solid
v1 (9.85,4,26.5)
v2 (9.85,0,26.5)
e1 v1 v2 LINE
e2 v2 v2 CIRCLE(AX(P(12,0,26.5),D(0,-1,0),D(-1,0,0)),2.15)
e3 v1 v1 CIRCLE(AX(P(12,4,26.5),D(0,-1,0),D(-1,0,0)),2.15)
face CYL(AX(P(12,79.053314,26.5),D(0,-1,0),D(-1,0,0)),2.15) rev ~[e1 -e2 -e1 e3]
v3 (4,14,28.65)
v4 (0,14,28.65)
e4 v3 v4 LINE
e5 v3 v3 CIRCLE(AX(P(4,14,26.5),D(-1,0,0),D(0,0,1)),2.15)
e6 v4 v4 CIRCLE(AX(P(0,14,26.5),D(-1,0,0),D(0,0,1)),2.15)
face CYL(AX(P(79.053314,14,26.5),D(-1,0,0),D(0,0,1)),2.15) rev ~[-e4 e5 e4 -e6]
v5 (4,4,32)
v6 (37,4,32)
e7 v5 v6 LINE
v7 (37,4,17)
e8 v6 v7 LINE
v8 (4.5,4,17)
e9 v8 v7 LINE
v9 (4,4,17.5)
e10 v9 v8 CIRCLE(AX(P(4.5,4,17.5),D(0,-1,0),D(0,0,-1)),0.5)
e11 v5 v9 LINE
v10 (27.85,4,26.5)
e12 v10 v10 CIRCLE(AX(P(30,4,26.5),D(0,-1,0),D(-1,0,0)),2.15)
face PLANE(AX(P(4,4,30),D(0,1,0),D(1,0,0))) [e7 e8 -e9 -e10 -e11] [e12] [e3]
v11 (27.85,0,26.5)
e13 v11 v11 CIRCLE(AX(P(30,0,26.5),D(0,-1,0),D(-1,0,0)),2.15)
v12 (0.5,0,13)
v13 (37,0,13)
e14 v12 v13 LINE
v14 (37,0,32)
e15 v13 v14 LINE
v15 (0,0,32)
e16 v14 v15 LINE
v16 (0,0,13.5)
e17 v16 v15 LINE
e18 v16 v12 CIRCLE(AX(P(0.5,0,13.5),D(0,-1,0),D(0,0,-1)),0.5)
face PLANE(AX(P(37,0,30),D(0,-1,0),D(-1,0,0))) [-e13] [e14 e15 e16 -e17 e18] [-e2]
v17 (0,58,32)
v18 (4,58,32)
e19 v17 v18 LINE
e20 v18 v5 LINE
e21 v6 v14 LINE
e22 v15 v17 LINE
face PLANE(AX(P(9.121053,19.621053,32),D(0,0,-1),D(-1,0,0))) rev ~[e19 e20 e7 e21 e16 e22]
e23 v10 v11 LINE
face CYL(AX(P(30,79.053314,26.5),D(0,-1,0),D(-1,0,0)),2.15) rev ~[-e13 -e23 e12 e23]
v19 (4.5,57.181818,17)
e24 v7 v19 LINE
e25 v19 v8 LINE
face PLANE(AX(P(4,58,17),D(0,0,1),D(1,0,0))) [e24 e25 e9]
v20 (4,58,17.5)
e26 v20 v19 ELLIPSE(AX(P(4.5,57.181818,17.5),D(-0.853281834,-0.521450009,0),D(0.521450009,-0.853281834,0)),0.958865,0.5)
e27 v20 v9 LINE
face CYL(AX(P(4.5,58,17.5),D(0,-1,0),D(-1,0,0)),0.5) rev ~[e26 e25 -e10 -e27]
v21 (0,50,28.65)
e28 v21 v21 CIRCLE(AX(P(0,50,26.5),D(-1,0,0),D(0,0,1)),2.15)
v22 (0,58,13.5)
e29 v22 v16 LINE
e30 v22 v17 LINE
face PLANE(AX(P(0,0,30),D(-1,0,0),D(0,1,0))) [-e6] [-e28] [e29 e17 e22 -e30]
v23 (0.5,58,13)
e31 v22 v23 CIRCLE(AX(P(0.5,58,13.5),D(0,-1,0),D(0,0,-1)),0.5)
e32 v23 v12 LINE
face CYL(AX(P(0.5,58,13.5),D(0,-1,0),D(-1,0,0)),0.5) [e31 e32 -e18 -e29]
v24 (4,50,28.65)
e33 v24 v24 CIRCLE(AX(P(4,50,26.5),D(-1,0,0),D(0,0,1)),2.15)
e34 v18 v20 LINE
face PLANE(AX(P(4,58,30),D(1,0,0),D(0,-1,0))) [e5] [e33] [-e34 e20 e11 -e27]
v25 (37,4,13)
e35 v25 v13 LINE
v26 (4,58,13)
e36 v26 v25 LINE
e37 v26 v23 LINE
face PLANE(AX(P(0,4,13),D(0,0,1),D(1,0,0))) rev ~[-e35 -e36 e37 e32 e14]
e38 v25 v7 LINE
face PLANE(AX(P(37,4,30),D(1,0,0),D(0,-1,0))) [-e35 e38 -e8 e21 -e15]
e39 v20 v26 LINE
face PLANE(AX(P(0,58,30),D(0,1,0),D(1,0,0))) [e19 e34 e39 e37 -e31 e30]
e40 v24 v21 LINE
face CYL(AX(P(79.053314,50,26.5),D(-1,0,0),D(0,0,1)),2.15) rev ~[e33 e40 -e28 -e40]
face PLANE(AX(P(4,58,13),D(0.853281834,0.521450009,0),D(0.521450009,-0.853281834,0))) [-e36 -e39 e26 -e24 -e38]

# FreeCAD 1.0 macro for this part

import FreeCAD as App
import Part
import Sketcher


def edges_at(feature, points):
    """Names of the edges that pass closest to the given points."""
    edges = feature.Shape.Edges
    near = lambda p: min(range(len(edges)), key=lambda i: edges[i].distToShape(Part.Vertex(*p))[0])
    return sorted({f"Edge{near(p) + 1}" for p in points})

doc = App.newDocument("Part")
params = doc.addObject("Spreadsheet::Sheet", "Params")
for row, (alias, value) in enumerate([
    ("sketch1_width", "37 mm"),
    ("sketch1_height", "58 mm"),
    ("pad1_length", "30 mm"),
    ("sketch2_width", "33 mm"),
    ("sketch2_height", "13 mm"),
    ("pocket1_length", "54 mm"),
    ("sketch3_width", "33 mm"),
    ("sketch3_height", "54 mm"),
    ("pocket2_length", "46 mm"),
    ("sketch4_diameter", "4.3 mm"),
    ("hole_diameter", "4.3 mm"),
    ("sketch5_diameter", "4.3 mm"),
    ("hole2_diameter", "4.3 mm"),
    ("sketch6_width", "37 mm"),
    ("sketch6_height", "13 mm"),
    ("fillet_radius", "0.5 mm"),
    ("sketch7_width", "4 mm"),
    ("sketch7_width2", "37 mm"),
    ("sketch7_height", "58 mm"),
    ("pad2_length", "2 mm"),
], start=1):
    params.set(f"A{row}", alias)
    params.set(f"B{row}", "=" + value)
    params.setAlias(f"B{row}", alias)

body = doc.addObject("PartDesign::Body", "Body")

# Sketch on XY plane
sketch1 = doc.addObject("Sketcher::SketchObject", "Sketch")
body.addObject(sketch1)
sketch1.AttachmentSupport = (doc.XY_Plane, [""])
sketch1.MapMode = "FlatFace"
sketch1.addGeometry([
    Part.LineSegment(App.Vector(0, 58, 0), App.Vector(0, 0, 0)),
    Part.LineSegment(App.Vector(0, 0, 0), App.Vector(37, 0, 0)),
    Part.LineSegment(App.Vector(37, 0, 0), App.Vector(37, 58, 0)),
    Part.LineSegment(App.Vector(37, 58, 0), App.Vector(0, 58, 0)),
], False)
sketch1.addConstraint([
    Sketcher.Constraint("Coincident", 0, 2, 1, 1),
    Sketcher.Constraint("Coincident", 1, 2, 2, 1),
    Sketcher.Constraint("Coincident", 2, 2, 3, 1),
    Sketcher.Constraint("Coincident", 3, 2, 0, 1),
    Sketcher.Constraint("Vertical", 0),
    Sketcher.Constraint("Horizontal", 1),
    Sketcher.Constraint("Vertical", 2),
    Sketcher.Constraint("Horizontal", 3),
    Sketcher.Constraint("Coincident", 0, 2, -1, 1),
    Sketcher.Constraint("DistanceX", 1, 1, 1, 2, 37.0),
    Sketcher.Constraint("DistanceY", 0, 2, 0, 1, 58.0),
])
sketch1.setExpression("Constraints[9]", "Params.sketch1_width")
sketch1.setExpression("Constraints[10]", "Params.sketch1_height")
pad1 = doc.addObject("PartDesign::Pad", "Pad")
body.addObject(pad1)
pad1.Profile = sketch1
pad1.setExpression("Length", "Params.pad1_length")

# Sketch on XZ plane
sketch2 = doc.addObject("Sketcher::SketchObject", "Sketch001")
body.addObject(sketch2)
sketch2.AttachmentSupport = (doc.XZ_Plane, [""])
sketch2.MapMode = "FlatFace"
sketch2.AttachmentOffset = App.Placement(App.Vector(0, 0, -58), App.Rotation())
sketch2.addGeometry([
    Part.LineSegment(App.Vector(4, 0, 0), App.Vector(4, 13, 0)),  # 0
    Part.LineSegment(App.Vector(4, 13, 0), App.Vector(37, 13, 0)),  # 1
    Part.LineSegment(App.Vector(37, 13, 0), App.Vector(37, 0, 0)),  # 2
    Part.LineSegment(App.Vector(37, 0, 0), App.Vector(4, 0, 0)),  # 3
    Part.LineSegment(App.Vector(4, 17, 0), App.Vector(4, 30, 0)),  # 4
    Part.LineSegment(App.Vector(4, 30, 0), App.Vector(37, 30, 0)),  # 5
    Part.LineSegment(App.Vector(37, 30, 0), App.Vector(37, 17, 0)),  # 6
    Part.LineSegment(App.Vector(37, 17, 0), App.Vector(4, 17, 0)),  # 7
], False)
sketch2.addConstraint([
    Sketcher.Constraint("Coincident", 0, 2, 1, 1),
    Sketcher.Constraint("Coincident", 1, 2, 2, 1),
    Sketcher.Constraint("Coincident", 2, 2, 3, 1),
    Sketcher.Constraint("Coincident", 3, 2, 0, 1),
    Sketcher.Constraint("Coincident", 4, 2, 5, 1),
    Sketcher.Constraint("Coincident", 5, 2, 6, 1),
    Sketcher.Constraint("Coincident", 6, 2, 7, 1),
    Sketcher.Constraint("Coincident", 7, 2, 4, 1),
    Sketcher.Constraint("Vertical", 0),
    Sketcher.Constraint("Horizontal", 1),
    Sketcher.Constraint("Vertical", 2),
    Sketcher.Constraint("Horizontal", 3),
    Sketcher.Constraint("Vertical", 4),
    Sketcher.Constraint("Horizontal", 5),
    Sketcher.Constraint("Vertical", 6),
    Sketcher.Constraint("Horizontal", 7),
    Sketcher.Constraint("PointOnObject", 2, 2, -1),
    Sketcher.Constraint("Vertical", 3, 2, 4, 2),
    Sketcher.Constraint("Vertical", 2, 2, 5, 2),
    Sketcher.Constraint("Equal", 2, 4),
    Sketcher.Constraint("DistanceX", 1, 1, 1, 2, 33.0),
    Sketcher.Constraint("DistanceY", 0, 1, 0, 2, 13.0),
    Sketcher.Constraint("DistanceX", -1, 1, 0, 2, 4.0),
    Sketcher.Constraint("DistanceY", -1, 1, 4, 2, 30.0),
])
sketch2.setExpression("Constraints[20]", "Params.sketch2_width")
sketch2.setExpression("Constraints[21]", "Params.sketch2_height")
pocket1 = doc.addObject("PartDesign::Pocket", "Pocket")
body.addObject(pocket1)
pocket1.Profile = sketch2
pocket1.setExpression("Length", "Params.pocket1_length")
pocket1.Reversed = True

# Sketch on XY plane
sketch3 = doc.addObject("Sketcher::SketchObject", "Sketch002")
body.addObject(sketch3)
sketch3.AttachmentSupport = (doc.XY_Plane, [""])
sketch3.MapMode = "FlatFace"
sketch3.AttachmentOffset = App.Placement(App.Vector(0, 0, 13), App.Rotation())
sketch3.addGeometry([
    Part.LineSegment(App.Vector(4, 58, 0), App.Vector(37, 4, 0)),
    Part.LineSegment(App.Vector(37, 4, 0), App.Vector(37, 58, 0)),
    Part.LineSegment(App.Vector(37, 58, 0), App.Vector(4, 58, 0)),
], False)
sketch3.addConstraint([
    Sketcher.Constraint("Coincident", 0, 2, 1, 1),
    Sketcher.Constraint("Coincident", 1, 2, 2, 1),
    Sketcher.Constraint("Coincident", 2, 2, 0, 1),
    Sketcher.Constraint("Vertical", 1),
    Sketcher.Constraint("Horizontal", 2),
    Sketcher.Constraint("DistanceX", 2, 2, 2, 1, 33.0),
    Sketcher.Constraint("DistanceY", 1, 1, 1, 2, 54.0),
    Sketcher.Constraint("DistanceX", -1, 1, 0, 2, 37.0),
    Sketcher.Constraint("DistanceY", -1, 1, 0, 2, 4.0),
])
sketch3.setExpression("Constraints[5]", "Params.sketch3_width")
sketch3.setExpression("Constraints[6]", "Params.sketch3_height")
pocket2 = doc.addObject("PartDesign::Pocket", "Pocket001")
body.addObject(pocket2)
pocket2.Profile = sketch3
pocket2.setExpression("Length", "Params.pocket2_length")
pocket2.Reversed = True

# Sketch on YZ plane
sketch4 = doc.addObject("Sketcher::SketchObject", "Sketch003")
body.addObject(sketch4)
sketch4.AttachmentSupport = (doc.YZ_Plane, [""])
sketch4.MapMode = "FlatFace"
sketch4.AttachmentOffset = App.Placement(App.Vector(0, 0, 4), App.Rotation())
sketch4.addGeometry([
    Part.Circle(App.Vector(14, 26.5, 0), App.Vector(0, 0, 1), 2.1),
    Part.Circle(App.Vector(50, 26.5, 0), App.Vector(0, 0, 1), 2.1),
], False)
sketch4.addConstraint([
    Sketcher.Constraint("Equal", 0, 1),
    Sketcher.Constraint("Horizontal", 0, 3, 1, 3),
    Sketcher.Constraint("Diameter", 0, 4.3),
    Sketcher.Constraint("DistanceX", -1, 1, 0, 3, 14.0),
    Sketcher.Constraint("DistanceX", -1, 1, 1, 3, 50.0),
    Sketcher.Constraint("DistanceY", -1, 1, 0, 3, 26.5),
])
sketch4.setExpression("Constraints[2]", "Params.sketch4_diameter")
doc.recompute()
hole = doc.addObject("PartDesign::Hole", "Hole")
body.addObject(hole)
hole.Profile = sketch4
hole.ThreadType = "None"
hole.setExpression("Diameter", "Params.hole_diameter")
hole.DepthType = "ThroughAll"

# Sketch on XZ plane
sketch5 = doc.addObject("Sketcher::SketchObject", "Sketch004")
body.addObject(sketch5)
sketch5.AttachmentSupport = (doc.XZ_Plane, [""])
sketch5.MapMode = "FlatFace"
sketch5.AttachmentOffset = App.Placement(App.Vector(0, 0, -4), App.Rotation())
sketch5.addGeometry([
    Part.Circle(App.Vector(12, 26.5, 0), App.Vector(0, 0, 1), 2.1),
    Part.Circle(App.Vector(30, 26.5, 0), App.Vector(0, 0, 1), 2.1),
], False)
sketch5.addConstraint([
    Sketcher.Constraint("Equal", 0, 1),
    Sketcher.Constraint("Horizontal", 0, 3, 1, 3),
    Sketcher.Constraint("Diameter", 0, 4.3),
    Sketcher.Constraint("DistanceX", -1, 1, 0, 3, 12.0),
    Sketcher.Constraint("DistanceX", -1, 1, 1, 3, 30.0),
    Sketcher.Constraint("DistanceY", -1, 1, 0, 3, 26.5),
])
sketch5.setExpression("Constraints[2]", "Params.sketch5_diameter")
doc.recompute()
hole2 = doc.addObject("PartDesign::Hole", "Hole001")
body.addObject(hole2)
hole2.Profile = sketch5
hole2.ThreadType = "None"
hole2.setExpression("Diameter", "Params.hole2_diameter")
hole2.DepthType = "ThroughAll"
hole2.Reversed = True

# Sketch on XZ plane
sketch6 = doc.addObject("Sketcher::SketchObject", "Sketch005")
body.addObject(sketch6)
sketch6.AttachmentSupport = (doc.XZ_Plane, [""])
sketch6.MapMode = "FlatFace"
sketch6.AttachmentOffset = App.Placement(App.Vector(0, 0, -4), App.Rotation())
sketch6.addGeometry([
    Part.LineSegment(App.Vector(0, 0, 0), App.Vector(0, 13, 0)),
    Part.LineSegment(App.Vector(0, 13, 0), App.Vector(37, 13, 0)),
    Part.LineSegment(App.Vector(37, 13, 0), App.Vector(37, 0, 0)),
    Part.LineSegment(App.Vector(37, 0, 0), App.Vector(0, 0, 0)),
], False)
sketch6.addConstraint([
    Sketcher.Constraint("Coincident", 0, 2, 1, 1),
    Sketcher.Constraint("Coincident", 1, 2, 2, 1),
    Sketcher.Constraint("Coincident", 2, 2, 3, 1),
    Sketcher.Constraint("Coincident", 3, 2, 0, 1),
    Sketcher.Constraint("Vertical", 0),
    Sketcher.Constraint("Horizontal", 1),
    Sketcher.Constraint("Vertical", 2),
    Sketcher.Constraint("Horizontal", 3),
    Sketcher.Constraint("Coincident", 3, 2, -1, 1),
    Sketcher.Constraint("DistanceX", 1, 1, 1, 2, 37.0),
    Sketcher.Constraint("DistanceY", 0, 1, 0, 2, 13.0),
])
sketch6.setExpression("Constraints[9]", "Params.sketch6_width")
sketch6.setExpression("Constraints[10]", "Params.sketch6_height")
pocket3 = doc.addObject("PartDesign::Pocket", "Pocket002")
body.addObject(pocket3)
pocket3.Profile = sketch6
pocket3.Type = "ThroughAll"
pocket3.Midplane = True
doc.recompute()

fillet = doc.addObject("PartDesign::Fillet", "Fillet")
body.addObject(fillet)
fillet.Base = (pocket3, edges_at(pocket3, [(4, 31, 17), (0, 29, 13)]))
fillet.setExpression("Radius", "Params.fillet_radius")

# Sketch on XY plane
sketch7 = doc.addObject("Sketcher::SketchObject", "Sketch006")
body.addObject(sketch7)
sketch7.AttachmentSupport = (doc.XY_Plane, [""])
sketch7.MapMode = "FlatFace"
sketch7.AttachmentOffset = App.Placement(App.Vector(0, 0, 30), App.Rotation())
sketch7.addGeometry([
    Part.LineSegment(App.Vector(4, 58, 0), App.Vector(0, 58, 0)),  # 0
    Part.LineSegment(App.Vector(0, 58, 0), App.Vector(0, 0, 0)),  # 1
    Part.LineSegment(App.Vector(0, 0, 0), App.Vector(37, 0, 0)),  # 2
    Part.LineSegment(App.Vector(37, 0, 0), App.Vector(37, 4, 0)),  # 3
    Part.LineSegment(App.Vector(37, 4, 0), App.Vector(4, 4, 0)),  # 4
    Part.LineSegment(App.Vector(4, 4, 0), App.Vector(4, 58, 0)),  # 5
], False)
sketch7.addConstraint([
    Sketcher.Constraint("Coincident", 0, 2, 1, 1),
    Sketcher.Constraint("Coincident", 1, 2, 2, 1),
    Sketcher.Constraint("Coincident", 2, 2, 3, 1),
    Sketcher.Constraint("Coincident", 3, 2, 4, 1),
    Sketcher.Constraint("Coincident", 4, 2, 5, 1),
    Sketcher.Constraint("Coincident", 5, 2, 0, 1),
    Sketcher.Constraint("Horizontal", 0),
    Sketcher.Constraint("Vertical", 1),
    Sketcher.Constraint("Horizontal", 2),
    Sketcher.Constraint("Vertical", 3),
    Sketcher.Constraint("Horizontal", 4),
    Sketcher.Constraint("Vertical", 5),
    Sketcher.Constraint("Coincident", 1, 2, -1, 1),
    Sketcher.Constraint("Equal", 0, 3),
    Sketcher.Constraint("DistanceX", 0, 2, 0, 1, 4.0),
    Sketcher.Constraint("DistanceX", 2, 1, 2, 2, 37.0),
    Sketcher.Constraint("DistanceY", 1, 2, 1, 1, 58.0),
])
sketch7.setExpression("Constraints[14]", "Params.sketch7_width")
sketch7.setExpression("Constraints[15]", "Params.sketch7_width2")
sketch7.setExpression("Constraints[16]", "Params.sketch7_height")
pad2 = doc.addObject("PartDesign::Pad", "Pad001")
body.addObject(pad2)
pad2.Profile = sketch7
pad2.setExpression("Length", "Params.pad2_length")

doc.recompute()
